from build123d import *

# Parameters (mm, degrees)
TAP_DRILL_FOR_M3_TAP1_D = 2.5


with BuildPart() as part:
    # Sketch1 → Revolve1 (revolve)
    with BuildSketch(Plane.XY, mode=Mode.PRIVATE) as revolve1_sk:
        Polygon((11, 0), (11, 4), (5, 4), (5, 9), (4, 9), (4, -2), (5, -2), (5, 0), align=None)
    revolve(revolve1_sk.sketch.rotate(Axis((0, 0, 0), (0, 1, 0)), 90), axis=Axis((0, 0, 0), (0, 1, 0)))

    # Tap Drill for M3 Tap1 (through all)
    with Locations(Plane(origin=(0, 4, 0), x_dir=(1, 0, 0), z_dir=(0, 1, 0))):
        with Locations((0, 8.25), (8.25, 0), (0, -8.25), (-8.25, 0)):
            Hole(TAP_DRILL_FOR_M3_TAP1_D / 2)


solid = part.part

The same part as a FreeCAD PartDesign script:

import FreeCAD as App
import Part
import Sketcher

V = App.Vector

doc = App.newDocument("Part")
body = doc.addObject("PartDesign::Body", "Body")

# Sketch on XY plane
sketch1 = doc.addObject("Sketcher::SketchObject", "Sketch")
body.addObject(sketch1)
sketch1.AttachmentSupport = (doc.XY_Plane, [""])
sketch1.MapMode = "FlatFace"
sketch1.addGeometry([
    Part.LineSegment(V(11, 0, 0), V(11, 4, 0)),  # 0
    Part.LineSegment(V(11, 4, 0), V(5, 4, 0)),  # 1
    Part.LineSegment(V(5, 4, 0), V(5, 9, 0)),  # 2
    Part.LineSegment(V(5, 9, 0), V(4, 9, 0)),  # 3
    Part.LineSegment(V(4, 9, 0), V(4, -2, 0)),  # 4
    Part.LineSegment(V(4, -2, 0), V(5, -2, 0)),  # 5
    Part.LineSegment(V(5, -2, 0), V(5, 0, 0)),  # 6
    Part.LineSegment(V(5, 0, 0), V(11, 0, 0)),  # 7
], False)
sketch1.addConstraint([
    Sketcher.Constraint("Coincident", 0, 2, 1, 1),
    Sketcher.Constraint("Coincident", 1, 2, 2, 1),
    Sketcher.Constraint("Coincident", 2, 2, 3, 1),
    Sketcher.Constraint("Coincident", 3, 2, 4, 1),
    Sketcher.Constraint("Coincident", 4, 2, 5, 1),
    Sketcher.Constraint("Coincident", 5, 2, 6, 1),
    Sketcher.Constraint("Coincident", 6, 2, 7, 1),
    Sketcher.Constraint("Coincident", 7, 2, 0, 1),
    Sketcher.Constraint("Vertical", 0),
    Sketcher.Constraint("Horizontal", 1),
    Sketcher.Constraint("Vertical", 2),
    Sketcher.Constraint("Horizontal", 3),
    Sketcher.Constraint("Vertical", 4),
    Sketcher.Constraint("Horizontal", 5),
    Sketcher.Constraint("Vertical", 6),
    Sketcher.Constraint("Horizontal", 7),
    Sketcher.Constraint("PointOnObject", 6, 2, -1),
    Sketcher.Constraint("Vertical", 2, 2, 5, 2),
    Sketcher.Constraint("DistanceX", 1, 2, 1, 1, 6.0),
    Sketcher.Constraint("DistanceX", 3, 2, 3, 1, 1.0),
    Sketcher.Constraint("DistanceY", 0, 1, 0, 2, 4.0),
    Sketcher.Constraint("DistanceY", 2, 1, 2, 2, 5.0),
    Sketcher.Constraint("DistanceY", 4, 2, 4, 1, 11.0),
    Sketcher.Constraint("DistanceX", -1, 1, 0, 2, 11.0),
])
revolution = doc.addObject("PartDesign::Revolution", "Revolution")
body.addObject(revolution)
revolution.Profile = sketch1
revolution.ReferenceAxis = (sketch1, ["V_Axis"])
revolution.Angle = 360

# Sketch on XZ plane
sketch2 = doc.addObject("Sketcher::SketchObject", "Sketch001")
body.addObject(sketch2)
sketch2.AttachmentSupport = (doc.XZ_Plane, [""])
sketch2.MapMode = "FlatFace"
sketch2.AttachmentOffset = App.Placement(V(0, 0, -4), App.Rotation())
sketch2.addGeometry([
    Part.Circle(V(0, -8.2, 0), V(0, 0, 1), 1.2),
    Part.Circle(V(8.2, 0, 0), V(0, 0, 1), 1.2),
    Part.Circle(V(0, 8.2, 0), V(0, 0, 1), 1.2),
    Part.Circle(V(-8.2, 0, 0), V(0, 0, 1), 1.2),
], False)
sketch2.addConstraint([
    Sketcher.Constraint("Equal", 0, 1),
    Sketcher.Constraint("Equal", 1, 2),
    Sketcher.Constraint("Equal", 2, 3),
    Sketcher.Constraint("Symmetric", 0, 3, 2, 3, -1, 1),
    Sketcher.Constraint("Symmetric", 1, 3, 3, 3, -1, 1),
    Sketcher.Constraint("PointOnObject", 0, 3, -2),
    Sketcher.Constraint("PointOnObject", 1, 3, -1),
    Sketcher.Constraint("Diameter", 0, 2.5),
    Sketcher.Constraint("DistanceY", 0, 3, 2, 3, 16.5),
    Sketcher.Constraint("DistanceX", 3, 3, 1, 3, 16.5),
])
doc.recompute()
hole = doc.addObject("PartDesign::Hole", "Hole")
body.addObject(hole)
hole.Profile = sketch2
hole.ThreadType = "None"
hole.Diameter = 2.5
hole.DepthType = "ThroughAll"
hole.Reversed = True

doc.recompute()
